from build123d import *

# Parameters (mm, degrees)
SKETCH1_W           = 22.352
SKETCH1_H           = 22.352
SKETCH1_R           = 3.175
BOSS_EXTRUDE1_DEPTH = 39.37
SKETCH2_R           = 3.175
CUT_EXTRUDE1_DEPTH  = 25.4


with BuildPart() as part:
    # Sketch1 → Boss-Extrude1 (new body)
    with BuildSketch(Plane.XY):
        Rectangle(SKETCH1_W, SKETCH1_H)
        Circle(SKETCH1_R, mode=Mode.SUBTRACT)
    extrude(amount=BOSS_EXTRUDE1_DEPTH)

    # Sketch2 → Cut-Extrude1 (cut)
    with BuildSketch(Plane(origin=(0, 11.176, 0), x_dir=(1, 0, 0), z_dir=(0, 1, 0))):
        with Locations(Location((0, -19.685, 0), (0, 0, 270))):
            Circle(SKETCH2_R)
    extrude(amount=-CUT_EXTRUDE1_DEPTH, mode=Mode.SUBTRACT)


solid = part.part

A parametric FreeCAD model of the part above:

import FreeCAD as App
import Part
import Sketcher

V = App.Vector
Q = App.Units.Quantity

doc = App.newDocument("Part")
body = doc.addObject("PartDesign::Body", "Body")

# Sketch on XY plane
sketch1 = body.newObject("Sketcher::SketchObject", "Sketch")
sketch1.AttachmentSupport = (doc.getObject("XY_Plane"), [""])
sketch1.MapMode = "FlatFace"
sketch1.addGeometry(Part.LineSegment(V(-11.2, 11.2, 0), V(-11.2, -11.2, 0)), False)
sketch1.addGeometry(Part.LineSegment(V(-11.2, -11.2, 0), V(11.2, -11.2, 0)), False)
sketch1.addGeometry(Part.LineSegment(V(11.2, -11.2, 0), V(11.2, 11.2, 0)), False)
sketch1.addGeometry(Part.LineSegment(V(11.2, 11.2, 0), V(-11.2, 11.2, 0)), False)
sketch1.addGeometry(Part.Circle(V(0, 0, 0), V(0, 0, 1), 3.2), False)
sketch1.addConstraint(Sketcher.Constraint("Coincident", 0, 2, 1, 1))
sketch1.addConstraint(Sketcher.Constraint("Coincident", 1, 2, 2, 1))
sketch1.addConstraint(Sketcher.Constraint("Coincident", 2, 2, 3, 1))
sketch1.addConstraint(Sketcher.Constraint("Coincident", 3, 2, 0, 1))
sketch1.addConstraint(Sketcher.Constraint("Vertical", 0))
sketch1.addConstraint(Sketcher.Constraint("Horizontal", 1))
sketch1.addConstraint(Sketcher.Constraint("Vertical", 2))
sketch1.addConstraint(Sketcher.Constraint("Horizontal", 3))
sketch1.addConstraint(Sketcher.Constraint("Coincident", 4, 3, -1, 1))
sketch1.addConstraint(Sketcher.Constraint("Symmetric", 0, 2, 2, 2, -1, 1))
sketch1.addConstraint(Sketcher.Constraint("Equal", 3, 0))
sketch1.addConstraint(Sketcher.Constraint("Diameter", 4, Q("0.25 in")))
sketch1.addConstraint(Sketcher.Constraint("DistanceX", 1, 1, 1, 2, Q("0.88 in")))
pad1 = body.newObject("PartDesign::Pad", "Pad")
pad1.Profile = sketch1
pad1.Length = Q("1.55 in")

# Sketch on XZ plane
sketch2 = body.newObject("Sketcher::SketchObject", "Sketch001")
sketch2.AttachmentSupport = (doc.getObject("XZ_Plane"), [""])
sketch2.MapMode = "FlatFace"
sketch2.AttachmentOffset = App.Placement(V(0, 0, -0.44 * 25.4), App.Rotation())
sketch2.addGeometry(Part.Circle(V(0, 19.7, 0), V(0, 0, 1), 3.2), False)
sketch2.addConstraint(Sketcher.Constraint("PointOnObject", 0, 3, -2))
sketch2.addConstraint(Sketcher.Constraint("Diameter", 0, Q("0.25 in")))
sketch2.addConstraint(Sketcher.Constraint("DistanceY", -1, 1, 0, 3, Q("0.775 in")))
pocket1 = body.newObject("PartDesign::Pocket", "Pocket")
pocket1.Profile = sketch2
pocket1.Length = Q("1 in")
pocket1.Reversed = True

doc.recompute()
